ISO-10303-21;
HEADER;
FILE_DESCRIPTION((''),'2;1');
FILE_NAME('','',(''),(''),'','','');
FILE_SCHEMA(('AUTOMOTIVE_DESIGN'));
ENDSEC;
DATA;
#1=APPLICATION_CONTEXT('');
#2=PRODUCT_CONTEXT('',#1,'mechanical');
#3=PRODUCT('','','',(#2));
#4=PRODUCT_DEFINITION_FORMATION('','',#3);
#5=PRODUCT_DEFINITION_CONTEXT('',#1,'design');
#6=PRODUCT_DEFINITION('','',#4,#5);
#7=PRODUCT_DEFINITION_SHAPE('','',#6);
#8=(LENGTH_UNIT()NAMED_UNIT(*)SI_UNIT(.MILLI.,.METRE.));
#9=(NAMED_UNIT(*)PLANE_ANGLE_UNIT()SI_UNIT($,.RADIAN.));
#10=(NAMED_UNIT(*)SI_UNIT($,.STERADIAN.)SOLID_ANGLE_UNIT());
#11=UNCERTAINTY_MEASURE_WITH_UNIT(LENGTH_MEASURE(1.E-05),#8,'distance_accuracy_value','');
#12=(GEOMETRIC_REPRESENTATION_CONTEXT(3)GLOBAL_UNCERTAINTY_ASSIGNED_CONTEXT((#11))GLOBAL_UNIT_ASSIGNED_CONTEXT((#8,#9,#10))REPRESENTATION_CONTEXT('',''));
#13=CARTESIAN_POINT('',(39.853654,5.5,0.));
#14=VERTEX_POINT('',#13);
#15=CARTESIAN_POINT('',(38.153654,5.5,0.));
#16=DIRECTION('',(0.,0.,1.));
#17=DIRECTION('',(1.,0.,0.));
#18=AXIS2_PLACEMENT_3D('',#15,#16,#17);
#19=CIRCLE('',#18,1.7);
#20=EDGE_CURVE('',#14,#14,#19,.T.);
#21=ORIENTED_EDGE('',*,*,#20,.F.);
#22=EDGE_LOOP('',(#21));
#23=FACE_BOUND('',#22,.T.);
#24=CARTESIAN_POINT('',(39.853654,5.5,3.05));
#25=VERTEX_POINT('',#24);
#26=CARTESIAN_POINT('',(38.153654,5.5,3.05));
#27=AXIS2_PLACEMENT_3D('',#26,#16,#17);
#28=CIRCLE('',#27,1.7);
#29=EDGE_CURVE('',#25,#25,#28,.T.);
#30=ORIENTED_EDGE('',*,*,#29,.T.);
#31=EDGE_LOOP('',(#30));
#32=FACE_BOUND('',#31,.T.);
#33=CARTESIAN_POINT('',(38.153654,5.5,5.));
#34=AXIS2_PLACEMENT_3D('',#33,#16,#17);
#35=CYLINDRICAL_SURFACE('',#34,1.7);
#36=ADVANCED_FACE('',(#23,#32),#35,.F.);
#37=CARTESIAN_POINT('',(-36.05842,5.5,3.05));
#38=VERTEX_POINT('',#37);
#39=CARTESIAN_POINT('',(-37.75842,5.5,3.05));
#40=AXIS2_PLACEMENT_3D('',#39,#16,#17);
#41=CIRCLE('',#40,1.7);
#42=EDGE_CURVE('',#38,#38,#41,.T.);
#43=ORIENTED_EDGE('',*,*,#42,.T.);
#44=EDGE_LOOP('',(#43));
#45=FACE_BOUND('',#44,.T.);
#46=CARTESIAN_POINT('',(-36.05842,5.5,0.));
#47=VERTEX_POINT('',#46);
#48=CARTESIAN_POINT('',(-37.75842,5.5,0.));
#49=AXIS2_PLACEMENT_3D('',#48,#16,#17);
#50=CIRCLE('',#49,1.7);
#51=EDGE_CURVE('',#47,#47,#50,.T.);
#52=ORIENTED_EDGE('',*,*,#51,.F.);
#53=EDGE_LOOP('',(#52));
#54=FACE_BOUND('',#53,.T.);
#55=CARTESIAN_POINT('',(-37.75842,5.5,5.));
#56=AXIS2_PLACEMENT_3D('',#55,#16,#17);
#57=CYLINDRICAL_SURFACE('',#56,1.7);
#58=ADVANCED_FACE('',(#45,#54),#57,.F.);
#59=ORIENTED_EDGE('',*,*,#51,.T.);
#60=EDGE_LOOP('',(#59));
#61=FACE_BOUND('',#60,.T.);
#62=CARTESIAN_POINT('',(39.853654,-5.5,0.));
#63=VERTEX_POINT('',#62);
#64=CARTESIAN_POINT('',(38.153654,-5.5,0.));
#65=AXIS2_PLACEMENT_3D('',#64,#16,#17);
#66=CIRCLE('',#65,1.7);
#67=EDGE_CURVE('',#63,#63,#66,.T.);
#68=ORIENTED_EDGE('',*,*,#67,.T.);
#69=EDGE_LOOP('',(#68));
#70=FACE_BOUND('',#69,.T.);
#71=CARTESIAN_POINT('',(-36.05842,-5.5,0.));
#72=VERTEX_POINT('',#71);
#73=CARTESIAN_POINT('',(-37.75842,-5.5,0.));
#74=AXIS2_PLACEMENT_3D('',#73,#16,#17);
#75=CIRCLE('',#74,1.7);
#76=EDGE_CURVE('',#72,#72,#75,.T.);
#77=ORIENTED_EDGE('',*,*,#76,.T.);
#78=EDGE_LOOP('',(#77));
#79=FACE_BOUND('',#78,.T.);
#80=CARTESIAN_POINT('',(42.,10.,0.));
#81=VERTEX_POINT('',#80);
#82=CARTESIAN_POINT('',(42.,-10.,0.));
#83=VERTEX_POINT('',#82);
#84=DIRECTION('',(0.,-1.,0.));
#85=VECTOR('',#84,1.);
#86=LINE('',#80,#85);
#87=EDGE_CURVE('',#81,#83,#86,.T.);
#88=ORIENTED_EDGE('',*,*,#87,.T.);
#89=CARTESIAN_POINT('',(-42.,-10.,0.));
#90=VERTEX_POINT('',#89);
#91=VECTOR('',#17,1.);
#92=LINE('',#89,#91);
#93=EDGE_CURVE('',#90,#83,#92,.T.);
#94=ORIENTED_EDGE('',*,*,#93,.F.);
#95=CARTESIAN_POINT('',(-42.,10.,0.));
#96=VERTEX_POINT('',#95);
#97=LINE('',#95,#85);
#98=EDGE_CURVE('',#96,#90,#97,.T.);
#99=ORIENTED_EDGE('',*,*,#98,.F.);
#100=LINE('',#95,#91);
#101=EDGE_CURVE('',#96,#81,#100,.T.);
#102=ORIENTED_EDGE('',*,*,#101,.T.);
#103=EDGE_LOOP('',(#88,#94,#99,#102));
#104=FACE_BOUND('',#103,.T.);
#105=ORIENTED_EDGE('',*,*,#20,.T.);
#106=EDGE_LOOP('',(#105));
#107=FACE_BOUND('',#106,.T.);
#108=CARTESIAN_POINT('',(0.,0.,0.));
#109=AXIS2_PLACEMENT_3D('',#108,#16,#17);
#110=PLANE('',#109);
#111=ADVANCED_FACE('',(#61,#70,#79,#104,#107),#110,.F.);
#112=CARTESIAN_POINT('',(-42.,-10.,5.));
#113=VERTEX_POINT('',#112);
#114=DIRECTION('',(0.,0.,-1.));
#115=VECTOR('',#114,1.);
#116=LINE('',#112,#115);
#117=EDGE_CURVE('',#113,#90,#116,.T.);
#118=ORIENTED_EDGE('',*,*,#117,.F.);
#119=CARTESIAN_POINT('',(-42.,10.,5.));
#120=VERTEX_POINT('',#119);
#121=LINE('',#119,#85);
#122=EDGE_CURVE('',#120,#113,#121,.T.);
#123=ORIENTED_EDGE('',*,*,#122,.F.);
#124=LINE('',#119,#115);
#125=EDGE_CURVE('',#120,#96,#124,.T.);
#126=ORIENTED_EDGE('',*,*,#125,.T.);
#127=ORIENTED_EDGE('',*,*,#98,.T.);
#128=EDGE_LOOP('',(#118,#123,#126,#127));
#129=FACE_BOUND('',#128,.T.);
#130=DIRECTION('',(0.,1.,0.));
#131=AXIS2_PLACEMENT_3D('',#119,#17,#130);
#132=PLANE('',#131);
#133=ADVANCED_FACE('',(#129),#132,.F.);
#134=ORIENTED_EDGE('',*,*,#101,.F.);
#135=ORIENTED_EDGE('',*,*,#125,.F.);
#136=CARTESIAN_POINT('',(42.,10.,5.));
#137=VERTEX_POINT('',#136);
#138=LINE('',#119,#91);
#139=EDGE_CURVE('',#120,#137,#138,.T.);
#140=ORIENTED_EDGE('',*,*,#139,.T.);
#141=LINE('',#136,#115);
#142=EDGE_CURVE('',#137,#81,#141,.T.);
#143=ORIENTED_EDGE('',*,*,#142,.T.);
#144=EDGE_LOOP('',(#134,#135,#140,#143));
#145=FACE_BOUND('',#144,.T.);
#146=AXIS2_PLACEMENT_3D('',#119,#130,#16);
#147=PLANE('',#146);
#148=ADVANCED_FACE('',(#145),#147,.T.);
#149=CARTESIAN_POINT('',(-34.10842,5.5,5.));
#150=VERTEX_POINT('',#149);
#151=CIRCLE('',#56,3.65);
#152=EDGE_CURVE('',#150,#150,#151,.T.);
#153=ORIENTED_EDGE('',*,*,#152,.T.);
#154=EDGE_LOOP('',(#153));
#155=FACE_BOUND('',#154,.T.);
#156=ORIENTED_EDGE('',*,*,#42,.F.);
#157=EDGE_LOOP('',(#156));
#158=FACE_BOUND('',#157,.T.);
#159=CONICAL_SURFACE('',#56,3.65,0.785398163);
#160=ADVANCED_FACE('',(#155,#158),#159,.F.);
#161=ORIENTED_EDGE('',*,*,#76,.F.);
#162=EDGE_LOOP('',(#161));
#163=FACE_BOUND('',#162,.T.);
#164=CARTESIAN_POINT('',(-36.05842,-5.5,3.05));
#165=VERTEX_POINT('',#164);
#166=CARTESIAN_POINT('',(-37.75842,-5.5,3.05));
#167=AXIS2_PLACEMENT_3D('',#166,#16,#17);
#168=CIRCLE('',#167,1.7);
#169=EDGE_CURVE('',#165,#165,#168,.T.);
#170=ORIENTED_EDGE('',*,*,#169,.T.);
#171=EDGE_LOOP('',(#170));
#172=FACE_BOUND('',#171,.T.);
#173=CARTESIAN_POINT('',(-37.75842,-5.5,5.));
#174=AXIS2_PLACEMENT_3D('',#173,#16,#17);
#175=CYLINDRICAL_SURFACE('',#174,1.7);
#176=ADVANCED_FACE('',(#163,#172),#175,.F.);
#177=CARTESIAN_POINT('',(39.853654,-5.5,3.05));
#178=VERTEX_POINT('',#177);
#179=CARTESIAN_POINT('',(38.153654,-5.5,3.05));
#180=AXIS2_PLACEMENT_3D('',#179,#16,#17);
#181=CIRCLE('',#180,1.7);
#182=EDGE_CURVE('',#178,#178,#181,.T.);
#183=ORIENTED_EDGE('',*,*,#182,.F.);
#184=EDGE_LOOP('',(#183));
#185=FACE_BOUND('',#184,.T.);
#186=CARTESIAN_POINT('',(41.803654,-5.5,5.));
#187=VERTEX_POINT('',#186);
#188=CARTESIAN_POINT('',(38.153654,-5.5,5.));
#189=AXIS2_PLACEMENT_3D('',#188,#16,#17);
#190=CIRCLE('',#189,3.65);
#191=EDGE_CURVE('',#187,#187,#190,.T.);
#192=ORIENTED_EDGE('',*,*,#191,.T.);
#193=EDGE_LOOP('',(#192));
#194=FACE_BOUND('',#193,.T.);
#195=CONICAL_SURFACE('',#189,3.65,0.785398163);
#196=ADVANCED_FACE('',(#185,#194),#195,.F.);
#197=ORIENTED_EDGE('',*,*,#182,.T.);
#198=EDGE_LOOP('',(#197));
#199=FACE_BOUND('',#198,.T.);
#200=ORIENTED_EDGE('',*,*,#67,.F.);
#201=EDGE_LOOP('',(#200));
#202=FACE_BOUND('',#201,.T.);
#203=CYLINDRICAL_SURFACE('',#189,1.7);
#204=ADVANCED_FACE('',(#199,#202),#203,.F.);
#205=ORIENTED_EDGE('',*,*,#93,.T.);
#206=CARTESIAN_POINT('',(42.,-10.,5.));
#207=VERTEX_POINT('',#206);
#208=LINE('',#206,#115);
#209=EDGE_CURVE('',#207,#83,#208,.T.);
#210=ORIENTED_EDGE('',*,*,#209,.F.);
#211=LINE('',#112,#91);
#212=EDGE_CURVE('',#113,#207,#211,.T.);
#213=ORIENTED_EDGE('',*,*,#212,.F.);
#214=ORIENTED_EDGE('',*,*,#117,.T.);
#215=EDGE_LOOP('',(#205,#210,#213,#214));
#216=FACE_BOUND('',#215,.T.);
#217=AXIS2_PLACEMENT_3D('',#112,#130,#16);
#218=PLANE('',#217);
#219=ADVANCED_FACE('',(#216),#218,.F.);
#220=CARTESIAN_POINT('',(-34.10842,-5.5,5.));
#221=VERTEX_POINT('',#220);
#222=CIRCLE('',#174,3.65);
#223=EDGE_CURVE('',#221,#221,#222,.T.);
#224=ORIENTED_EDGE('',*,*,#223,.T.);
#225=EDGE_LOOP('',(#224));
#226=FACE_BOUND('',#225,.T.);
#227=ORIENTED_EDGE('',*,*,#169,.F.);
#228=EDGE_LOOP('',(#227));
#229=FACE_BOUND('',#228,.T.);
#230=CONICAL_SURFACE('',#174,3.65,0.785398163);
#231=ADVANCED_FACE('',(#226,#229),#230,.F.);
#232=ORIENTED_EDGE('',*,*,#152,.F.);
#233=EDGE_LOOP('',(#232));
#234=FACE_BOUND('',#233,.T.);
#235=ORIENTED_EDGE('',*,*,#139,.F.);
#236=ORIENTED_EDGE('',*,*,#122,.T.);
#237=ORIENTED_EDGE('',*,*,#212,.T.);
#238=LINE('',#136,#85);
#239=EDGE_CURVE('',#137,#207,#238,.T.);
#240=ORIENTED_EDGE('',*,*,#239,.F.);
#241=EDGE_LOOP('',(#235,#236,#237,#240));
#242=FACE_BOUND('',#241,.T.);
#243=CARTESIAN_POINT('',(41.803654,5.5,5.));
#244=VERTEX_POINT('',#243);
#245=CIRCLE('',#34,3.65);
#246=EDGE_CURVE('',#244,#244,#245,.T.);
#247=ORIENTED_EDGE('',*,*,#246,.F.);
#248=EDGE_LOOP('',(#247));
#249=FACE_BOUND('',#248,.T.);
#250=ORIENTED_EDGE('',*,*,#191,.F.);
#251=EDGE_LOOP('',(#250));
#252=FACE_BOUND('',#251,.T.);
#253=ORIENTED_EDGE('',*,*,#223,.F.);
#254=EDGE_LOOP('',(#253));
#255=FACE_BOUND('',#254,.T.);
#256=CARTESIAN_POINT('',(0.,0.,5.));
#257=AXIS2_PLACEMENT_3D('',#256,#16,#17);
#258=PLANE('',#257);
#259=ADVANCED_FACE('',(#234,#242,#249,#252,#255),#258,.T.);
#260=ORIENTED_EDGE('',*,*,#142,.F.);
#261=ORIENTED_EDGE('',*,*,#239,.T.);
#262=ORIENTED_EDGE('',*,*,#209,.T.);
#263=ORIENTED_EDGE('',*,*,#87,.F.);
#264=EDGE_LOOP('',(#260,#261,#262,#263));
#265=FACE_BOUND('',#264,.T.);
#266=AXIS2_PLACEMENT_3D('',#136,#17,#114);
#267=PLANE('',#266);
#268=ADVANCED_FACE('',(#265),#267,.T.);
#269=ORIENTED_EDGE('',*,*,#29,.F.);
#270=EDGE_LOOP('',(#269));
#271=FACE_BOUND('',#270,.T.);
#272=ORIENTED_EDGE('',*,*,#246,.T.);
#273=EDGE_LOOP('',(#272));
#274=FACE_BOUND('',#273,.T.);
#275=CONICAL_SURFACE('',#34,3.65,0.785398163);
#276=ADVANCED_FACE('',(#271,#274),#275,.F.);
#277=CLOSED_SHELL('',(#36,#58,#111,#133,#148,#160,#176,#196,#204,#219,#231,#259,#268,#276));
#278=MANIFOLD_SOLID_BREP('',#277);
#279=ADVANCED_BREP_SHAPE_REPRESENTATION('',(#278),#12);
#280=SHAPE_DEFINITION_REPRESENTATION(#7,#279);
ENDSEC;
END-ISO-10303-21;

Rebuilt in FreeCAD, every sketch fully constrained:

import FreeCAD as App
import Part
import Sketcher

V = App.Vector


def add_polygon(sketch, points):
    """Adds a closed chain of lines whose ends are joined by coincident constraints."""
    first, n = sketch.GeometryCount, len(points)
    for a, b in zip(points, points[1:] + points[:1]):
        sketch.addGeometry(Part.LineSegment(App.Vector(*a, 0), App.Vector(*b, 0)), False)
    for i in range(n):
        sketch.addConstraint(Sketcher.Constraint("Coincident", first + i, 2, first + (i + 1) % n, 1))

doc = App.newDocument("Part")
body = doc.addObject("PartDesign::Body", "Body")

# Sketch on XY plane
sketch1 = body.newObject("Sketcher::SketchObject", "Sketch")
sketch1.AttachmentSupport = (doc.getObject("XY_Plane"), [""])
sketch1.MapMode = "FlatFace"
add_polygon(sketch1, [(-42, 10), (-42, -10), (42, -10), (42, 10)])  # lines 0-3
sketch1.addConstraint([
    Sketcher.Constraint("Vertical", 0),
    Sketcher.Constraint("Horizontal", 1),
    Sketcher.Constraint("Vertical", 2),
    Sketcher.Constraint("Horizontal", 3),
    Sketcher.Constraint("Symmetric", 0, 2, 2, 2, -1, 1),
    Sketcher.Constraint("DistanceX", 1, 1, 1, 2, 84.0),
    Sketcher.Constraint("DistanceY", 0, 2, 0, 1, 20.0),
])
pad1 = body.newObject("PartDesign::Pad", "Pad")
pad1.Profile = sketch1
pad1.Length = 5

# Sketch on XY plane
sketch2 = body.newObject("Sketcher::SketchObject", "Sketch001")
sketch2.AttachmentSupport = (doc.getObject("XY_Plane"), [""])
sketch2.MapMode = "FlatFace"
sketch2.AttachmentOffset = App.Placement(V(0, 0, 5), App.Rotation())
sketch2.addGeometry([
    Part.Circle(V(38.2, 5.5, 0), V(0, 0, 1), 1.7),
    Part.Circle(V(38.2, -5.5, 0), V(0, 0, 1), 1.7),
    Part.Circle(V(-37.8, 5.5, 0), V(0, 0, 1), 1.7),
    Part.Circle(V(-37.8, -5.5, 0), V(0, 0, 1), 1.7),
], False)
sketch2.addConstraint([
    Sketcher.Constraint("Equal", 0, 1),
    Sketcher.Constraint("Equal", 1, 2),
    Sketcher.Constraint("Equal", 2, 3),
    Sketcher.Constraint("Symmetric", 0, 3, 1, 3, -1),
    Sketcher.Constraint("Symmetric", 2, 3, 3, 3, -1),
    Sketcher.Constraint("Horizontal", 0, 3, 2, 3),
    Sketcher.Constraint("Diameter", 0, 3.4),
    Sketcher.Constraint("DistanceY", 1, 3, 0, 3, 11.0),
    Sketcher.Constraint("DistanceX", 2, 3, -1, 1, 37.75842),
    Sketcher.Constraint("DistanceX", -1, 1, 0, 3, 38.153654),
])
doc.recompute()
hole = body.newObject("PartDesign::Hole", "Hole")
hole.Profile = sketch2
hole.ThreadType = "None"
hole.Diameter = 3.4
hole.DepthType = "Dimension"
hole.Depth = 12
hole.DrillPoint = "Angled"
hole.DrillPointAngle = 118
hole.HoleCutType = "Countersink"
hole.HoleCutDiameter = 7.3
hole.HoleCutCountersinkAngle = 90

doc.recompute()
